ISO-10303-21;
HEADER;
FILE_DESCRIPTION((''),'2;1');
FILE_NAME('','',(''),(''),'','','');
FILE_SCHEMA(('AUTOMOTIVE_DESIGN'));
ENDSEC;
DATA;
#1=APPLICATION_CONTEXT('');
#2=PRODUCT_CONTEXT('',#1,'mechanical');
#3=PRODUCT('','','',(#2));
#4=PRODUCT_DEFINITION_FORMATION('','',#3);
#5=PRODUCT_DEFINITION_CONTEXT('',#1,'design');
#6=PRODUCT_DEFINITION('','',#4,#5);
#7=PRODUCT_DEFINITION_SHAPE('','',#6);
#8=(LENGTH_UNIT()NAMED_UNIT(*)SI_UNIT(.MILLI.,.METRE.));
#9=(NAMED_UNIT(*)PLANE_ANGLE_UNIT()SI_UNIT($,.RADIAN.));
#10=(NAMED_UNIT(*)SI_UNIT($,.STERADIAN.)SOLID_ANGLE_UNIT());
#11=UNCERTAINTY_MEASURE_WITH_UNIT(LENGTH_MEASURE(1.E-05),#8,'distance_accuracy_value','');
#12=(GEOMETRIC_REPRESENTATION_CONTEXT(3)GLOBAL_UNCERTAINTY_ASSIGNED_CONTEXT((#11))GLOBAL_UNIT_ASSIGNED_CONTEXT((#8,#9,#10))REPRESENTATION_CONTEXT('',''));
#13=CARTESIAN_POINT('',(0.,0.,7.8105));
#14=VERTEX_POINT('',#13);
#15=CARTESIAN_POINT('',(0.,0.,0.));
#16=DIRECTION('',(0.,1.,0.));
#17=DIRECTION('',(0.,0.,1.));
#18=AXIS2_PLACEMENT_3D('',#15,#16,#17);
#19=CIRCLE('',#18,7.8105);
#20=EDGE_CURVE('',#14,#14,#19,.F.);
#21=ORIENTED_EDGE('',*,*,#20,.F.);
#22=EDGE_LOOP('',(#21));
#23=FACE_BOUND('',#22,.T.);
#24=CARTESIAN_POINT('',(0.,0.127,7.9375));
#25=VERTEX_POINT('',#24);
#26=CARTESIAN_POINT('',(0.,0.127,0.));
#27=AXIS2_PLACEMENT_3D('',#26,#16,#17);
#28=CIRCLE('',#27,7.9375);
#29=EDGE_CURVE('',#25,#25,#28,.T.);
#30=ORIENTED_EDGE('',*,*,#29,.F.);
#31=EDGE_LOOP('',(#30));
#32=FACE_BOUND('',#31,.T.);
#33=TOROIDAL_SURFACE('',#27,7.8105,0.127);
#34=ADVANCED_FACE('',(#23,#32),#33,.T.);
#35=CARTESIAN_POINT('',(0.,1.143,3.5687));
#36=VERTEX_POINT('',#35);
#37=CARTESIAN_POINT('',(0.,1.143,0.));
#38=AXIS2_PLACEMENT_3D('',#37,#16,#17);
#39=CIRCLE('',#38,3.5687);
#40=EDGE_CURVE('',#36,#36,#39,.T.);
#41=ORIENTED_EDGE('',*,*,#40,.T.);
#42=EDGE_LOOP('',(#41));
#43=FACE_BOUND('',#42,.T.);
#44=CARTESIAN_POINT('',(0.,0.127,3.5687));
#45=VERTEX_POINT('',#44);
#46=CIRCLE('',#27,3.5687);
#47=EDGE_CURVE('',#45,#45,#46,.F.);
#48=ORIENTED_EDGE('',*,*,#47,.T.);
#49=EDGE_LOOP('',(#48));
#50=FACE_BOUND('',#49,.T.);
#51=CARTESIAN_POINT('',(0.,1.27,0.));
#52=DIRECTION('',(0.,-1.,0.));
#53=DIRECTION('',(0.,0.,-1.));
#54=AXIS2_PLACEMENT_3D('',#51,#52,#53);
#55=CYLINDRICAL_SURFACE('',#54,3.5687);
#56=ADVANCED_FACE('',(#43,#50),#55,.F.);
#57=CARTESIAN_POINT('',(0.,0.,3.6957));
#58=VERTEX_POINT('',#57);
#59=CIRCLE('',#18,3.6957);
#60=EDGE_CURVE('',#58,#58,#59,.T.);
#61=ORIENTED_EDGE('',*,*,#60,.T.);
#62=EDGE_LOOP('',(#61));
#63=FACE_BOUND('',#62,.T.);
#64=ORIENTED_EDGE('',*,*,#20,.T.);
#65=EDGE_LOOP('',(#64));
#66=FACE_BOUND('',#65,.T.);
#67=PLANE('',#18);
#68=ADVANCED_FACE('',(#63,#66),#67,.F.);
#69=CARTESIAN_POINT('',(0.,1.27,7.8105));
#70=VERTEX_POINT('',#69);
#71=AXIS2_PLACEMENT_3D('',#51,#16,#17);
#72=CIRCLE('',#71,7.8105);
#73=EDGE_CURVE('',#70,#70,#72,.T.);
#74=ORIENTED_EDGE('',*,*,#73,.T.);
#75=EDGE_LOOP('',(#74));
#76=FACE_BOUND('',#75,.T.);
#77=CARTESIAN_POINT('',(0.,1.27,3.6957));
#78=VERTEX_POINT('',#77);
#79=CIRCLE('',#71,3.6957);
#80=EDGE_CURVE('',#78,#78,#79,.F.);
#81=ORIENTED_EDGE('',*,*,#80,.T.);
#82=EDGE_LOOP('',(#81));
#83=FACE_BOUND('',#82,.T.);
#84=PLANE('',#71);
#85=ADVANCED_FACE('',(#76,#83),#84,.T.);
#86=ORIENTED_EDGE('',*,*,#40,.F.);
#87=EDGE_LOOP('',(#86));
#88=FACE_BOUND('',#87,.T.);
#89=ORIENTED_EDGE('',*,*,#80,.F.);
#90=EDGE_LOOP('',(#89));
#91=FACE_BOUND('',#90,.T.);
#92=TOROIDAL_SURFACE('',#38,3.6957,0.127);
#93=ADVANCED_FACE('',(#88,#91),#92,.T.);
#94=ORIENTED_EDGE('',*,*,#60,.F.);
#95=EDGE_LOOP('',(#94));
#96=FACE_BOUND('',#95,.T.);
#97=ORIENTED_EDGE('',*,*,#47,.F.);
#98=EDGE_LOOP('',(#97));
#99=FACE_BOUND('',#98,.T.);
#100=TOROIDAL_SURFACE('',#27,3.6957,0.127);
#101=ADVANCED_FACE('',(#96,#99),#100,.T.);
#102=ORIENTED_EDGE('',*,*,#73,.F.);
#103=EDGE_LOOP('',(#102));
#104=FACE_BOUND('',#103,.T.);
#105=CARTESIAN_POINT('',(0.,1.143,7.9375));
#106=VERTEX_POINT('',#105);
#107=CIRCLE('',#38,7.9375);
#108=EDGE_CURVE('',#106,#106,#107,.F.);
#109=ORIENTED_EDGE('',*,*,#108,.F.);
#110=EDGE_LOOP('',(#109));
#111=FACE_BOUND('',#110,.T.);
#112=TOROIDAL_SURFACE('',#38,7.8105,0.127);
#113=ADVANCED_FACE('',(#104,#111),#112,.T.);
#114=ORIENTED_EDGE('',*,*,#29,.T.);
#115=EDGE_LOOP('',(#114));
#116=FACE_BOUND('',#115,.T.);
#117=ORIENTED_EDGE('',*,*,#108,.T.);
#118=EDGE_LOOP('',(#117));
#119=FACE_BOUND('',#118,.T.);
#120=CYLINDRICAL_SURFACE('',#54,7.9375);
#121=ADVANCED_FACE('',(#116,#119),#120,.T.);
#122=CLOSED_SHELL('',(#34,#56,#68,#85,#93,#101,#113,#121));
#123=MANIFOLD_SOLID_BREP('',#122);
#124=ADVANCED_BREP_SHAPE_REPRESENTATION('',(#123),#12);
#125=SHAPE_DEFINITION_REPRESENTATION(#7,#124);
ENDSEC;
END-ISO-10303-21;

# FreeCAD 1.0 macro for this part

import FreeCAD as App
import Part
import Sketcher
Q = App.Units.Quantity


def edges_at(feature, points):
    """Names of the edges that pass closest to the given points."""
    edges = feature.Shape.Edges
    near = lambda p: min(range(len(edges)), key=lambda i: edges[i].distToShape(Part.Vertex(*p))[0])
    return sorted({f"Edge{near(p) + 1}" for p in points})

doc = App.newDocument("Part")
body = doc.addObject("PartDesign::Body", "Body")

sketch1 = body.newObject("Sketcher::SketchObject", "Sketch")
sketch1.AttachmentSupport = (doc.getObject("XZ_Plane"), [""])
sketch1.MapMode = "FlatFace"
sketch1.addGeometry([
    Part.Circle(App.Vector(0, 0, 0), App.Vector(0, 0, 1), 7.9),
    Part.Circle(App.Vector(0, 0, 0), App.Vector(0, 0, 1), 3.6),
], False)
sketch1.addConstraint([
    Sketcher.Constraint("Coincident", 0, 3, -1, 1),
    Sketcher.Constraint("Coincident", 1, 3, -1, 1),
    Sketcher.Constraint("Diameter", 0, Q("0.625 in")),
    Sketcher.Constraint("Diameter", 1, Q("0.281 in")),
])
pad1 = body.newObject("PartDesign::Pad", "Pad")
pad1.Profile = sketch1
pad1.Length = Q("0.05 in")
pad1.Reversed = True
doc.recompute()

fillet = body.newObject("PartDesign::Fillet", "Fillet")
fillet.Base = (pad1, edges_at(pad1, [
    (0, 0, -7.938),
    (0, 1.27, -7.938),
    (0, 0, -3.569),
    (0, 1.27, -3.569),
]))
fillet.Radius = Q("0.005 in")

doc.recompute()
